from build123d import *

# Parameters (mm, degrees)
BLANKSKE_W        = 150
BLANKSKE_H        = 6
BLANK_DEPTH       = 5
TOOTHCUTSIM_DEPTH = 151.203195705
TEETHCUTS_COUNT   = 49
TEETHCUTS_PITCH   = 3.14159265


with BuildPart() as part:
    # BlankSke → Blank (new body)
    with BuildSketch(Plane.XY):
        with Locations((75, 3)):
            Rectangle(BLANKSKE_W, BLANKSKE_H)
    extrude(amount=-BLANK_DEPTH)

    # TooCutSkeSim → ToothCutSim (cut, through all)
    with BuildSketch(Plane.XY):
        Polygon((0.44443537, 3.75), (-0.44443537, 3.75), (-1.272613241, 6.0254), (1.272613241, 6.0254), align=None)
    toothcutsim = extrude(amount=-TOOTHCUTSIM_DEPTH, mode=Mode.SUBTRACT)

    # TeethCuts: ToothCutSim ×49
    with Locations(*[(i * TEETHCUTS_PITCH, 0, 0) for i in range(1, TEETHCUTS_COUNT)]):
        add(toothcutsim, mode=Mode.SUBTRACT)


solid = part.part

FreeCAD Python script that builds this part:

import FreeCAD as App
import Part
import Sketcher
Q = App.Units.Quantity


def add_polygon(sketch, points):
    """Adds a closed chain of lines whose ends are joined by coincident constraints."""
    first, n = sketch.GeometryCount, len(points)
    for a, b in zip(points, points[1:] + points[:1]):
        sketch.addGeometry(Part.LineSegment(App.Vector(*a, 0), App.Vector(*b, 0)), False)
    for i in range(n):
        sketch.addConstraint(Sketcher.Constraint("Coincident", first + i, 2, first + (i + 1) % n, 1))

doc = App.newDocument("Part")
body = doc.addObject("PartDesign::Body", "Body")

sketch1 = body.newObject("Sketcher::SketchObject", "Sketch")
sketch1.AttachmentSupport = (doc.getObject("XY_Plane"), [""])
sketch1.MapMode = "FlatFace"
add_polygon(sketch1, [(0, 6), (0, 0), (150, 0), (150, 6)])
sketch1.addConstraint(Sketcher.Constraint("Vertical", 0))
sketch1.addConstraint(Sketcher.Constraint("Horizontal", 1))
sketch1.addConstraint(Sketcher.Constraint("Vertical", 2))
sketch1.addConstraint(Sketcher.Constraint("Horizontal", 3))
sketch1.addConstraint(Sketcher.Constraint("Coincident", 0, 2, -1, 1))
sketch1.addConstraint(Sketcher.Constraint("DistanceX", 1, 1, 1, 2, 150.0))
sketch1.addConstraint(Sketcher.Constraint("DistanceY", 0, 2, 0, 1, 6.0))
pad1 = body.newObject("PartDesign::Pad", "Pad")
pad1.Profile = sketch1
pad1.Length = 5
pad1.Reversed = True

sketch2 = body.newObject("Sketcher::SketchObject", "Sketch001")
sketch2.AttachmentSupport = (doc.getObject("XY_Plane"), [""])
sketch2.MapMode = "FlatFace"
add_polygon(sketch2, [(-0.4, 3.8), (0.4, 3.8), (1.3, 6), (-1.3, 6)])
sketch2.addConstraint(Sketcher.Constraint("Horizontal", 0))
sketch2.addConstraint(Sketcher.Constraint("Horizontal", 2))
sketch2.addConstraint(Sketcher.Constraint("Equal", 1, 3))
sketch2.addConstraint(Sketcher.Constraint("Angle", 1, Q("70 deg")))
sketch2.addConstraint(Sketcher.Constraint("DistanceY", -1, 1, 0, 2, 3.75))
sketch2.addConstraint(Sketcher.Constraint("DistanceX", 0, 1, 0, 2, 0.888871))
sketch2.addConstraint(Sketcher.Constraint("DistanceY", -1, 1, 1, 2, 6.0254))
sketch2.addConstraint(Sketcher.Constraint("DistanceX", -1, 1, 0, 2, 0.444435))
pocket1 = body.newObject("PartDesign::Pocket", "Pocket")
pocket1.Profile = sketch2
pocket1.Type = "ThroughAll"
doc.recompute()

linearpattern = body.newObject("PartDesign::LinearPattern", "LinearPattern")
linearpattern.Originals = [pocket1]
linearpattern.Direction = (doc.getObject("X_Axis"), [""])
linearpattern.Mode = "offset"
linearpattern.Offset = 3.141593
linearpattern.Occurrences = 49
body.Tip = linearpattern

doc.recompute()
